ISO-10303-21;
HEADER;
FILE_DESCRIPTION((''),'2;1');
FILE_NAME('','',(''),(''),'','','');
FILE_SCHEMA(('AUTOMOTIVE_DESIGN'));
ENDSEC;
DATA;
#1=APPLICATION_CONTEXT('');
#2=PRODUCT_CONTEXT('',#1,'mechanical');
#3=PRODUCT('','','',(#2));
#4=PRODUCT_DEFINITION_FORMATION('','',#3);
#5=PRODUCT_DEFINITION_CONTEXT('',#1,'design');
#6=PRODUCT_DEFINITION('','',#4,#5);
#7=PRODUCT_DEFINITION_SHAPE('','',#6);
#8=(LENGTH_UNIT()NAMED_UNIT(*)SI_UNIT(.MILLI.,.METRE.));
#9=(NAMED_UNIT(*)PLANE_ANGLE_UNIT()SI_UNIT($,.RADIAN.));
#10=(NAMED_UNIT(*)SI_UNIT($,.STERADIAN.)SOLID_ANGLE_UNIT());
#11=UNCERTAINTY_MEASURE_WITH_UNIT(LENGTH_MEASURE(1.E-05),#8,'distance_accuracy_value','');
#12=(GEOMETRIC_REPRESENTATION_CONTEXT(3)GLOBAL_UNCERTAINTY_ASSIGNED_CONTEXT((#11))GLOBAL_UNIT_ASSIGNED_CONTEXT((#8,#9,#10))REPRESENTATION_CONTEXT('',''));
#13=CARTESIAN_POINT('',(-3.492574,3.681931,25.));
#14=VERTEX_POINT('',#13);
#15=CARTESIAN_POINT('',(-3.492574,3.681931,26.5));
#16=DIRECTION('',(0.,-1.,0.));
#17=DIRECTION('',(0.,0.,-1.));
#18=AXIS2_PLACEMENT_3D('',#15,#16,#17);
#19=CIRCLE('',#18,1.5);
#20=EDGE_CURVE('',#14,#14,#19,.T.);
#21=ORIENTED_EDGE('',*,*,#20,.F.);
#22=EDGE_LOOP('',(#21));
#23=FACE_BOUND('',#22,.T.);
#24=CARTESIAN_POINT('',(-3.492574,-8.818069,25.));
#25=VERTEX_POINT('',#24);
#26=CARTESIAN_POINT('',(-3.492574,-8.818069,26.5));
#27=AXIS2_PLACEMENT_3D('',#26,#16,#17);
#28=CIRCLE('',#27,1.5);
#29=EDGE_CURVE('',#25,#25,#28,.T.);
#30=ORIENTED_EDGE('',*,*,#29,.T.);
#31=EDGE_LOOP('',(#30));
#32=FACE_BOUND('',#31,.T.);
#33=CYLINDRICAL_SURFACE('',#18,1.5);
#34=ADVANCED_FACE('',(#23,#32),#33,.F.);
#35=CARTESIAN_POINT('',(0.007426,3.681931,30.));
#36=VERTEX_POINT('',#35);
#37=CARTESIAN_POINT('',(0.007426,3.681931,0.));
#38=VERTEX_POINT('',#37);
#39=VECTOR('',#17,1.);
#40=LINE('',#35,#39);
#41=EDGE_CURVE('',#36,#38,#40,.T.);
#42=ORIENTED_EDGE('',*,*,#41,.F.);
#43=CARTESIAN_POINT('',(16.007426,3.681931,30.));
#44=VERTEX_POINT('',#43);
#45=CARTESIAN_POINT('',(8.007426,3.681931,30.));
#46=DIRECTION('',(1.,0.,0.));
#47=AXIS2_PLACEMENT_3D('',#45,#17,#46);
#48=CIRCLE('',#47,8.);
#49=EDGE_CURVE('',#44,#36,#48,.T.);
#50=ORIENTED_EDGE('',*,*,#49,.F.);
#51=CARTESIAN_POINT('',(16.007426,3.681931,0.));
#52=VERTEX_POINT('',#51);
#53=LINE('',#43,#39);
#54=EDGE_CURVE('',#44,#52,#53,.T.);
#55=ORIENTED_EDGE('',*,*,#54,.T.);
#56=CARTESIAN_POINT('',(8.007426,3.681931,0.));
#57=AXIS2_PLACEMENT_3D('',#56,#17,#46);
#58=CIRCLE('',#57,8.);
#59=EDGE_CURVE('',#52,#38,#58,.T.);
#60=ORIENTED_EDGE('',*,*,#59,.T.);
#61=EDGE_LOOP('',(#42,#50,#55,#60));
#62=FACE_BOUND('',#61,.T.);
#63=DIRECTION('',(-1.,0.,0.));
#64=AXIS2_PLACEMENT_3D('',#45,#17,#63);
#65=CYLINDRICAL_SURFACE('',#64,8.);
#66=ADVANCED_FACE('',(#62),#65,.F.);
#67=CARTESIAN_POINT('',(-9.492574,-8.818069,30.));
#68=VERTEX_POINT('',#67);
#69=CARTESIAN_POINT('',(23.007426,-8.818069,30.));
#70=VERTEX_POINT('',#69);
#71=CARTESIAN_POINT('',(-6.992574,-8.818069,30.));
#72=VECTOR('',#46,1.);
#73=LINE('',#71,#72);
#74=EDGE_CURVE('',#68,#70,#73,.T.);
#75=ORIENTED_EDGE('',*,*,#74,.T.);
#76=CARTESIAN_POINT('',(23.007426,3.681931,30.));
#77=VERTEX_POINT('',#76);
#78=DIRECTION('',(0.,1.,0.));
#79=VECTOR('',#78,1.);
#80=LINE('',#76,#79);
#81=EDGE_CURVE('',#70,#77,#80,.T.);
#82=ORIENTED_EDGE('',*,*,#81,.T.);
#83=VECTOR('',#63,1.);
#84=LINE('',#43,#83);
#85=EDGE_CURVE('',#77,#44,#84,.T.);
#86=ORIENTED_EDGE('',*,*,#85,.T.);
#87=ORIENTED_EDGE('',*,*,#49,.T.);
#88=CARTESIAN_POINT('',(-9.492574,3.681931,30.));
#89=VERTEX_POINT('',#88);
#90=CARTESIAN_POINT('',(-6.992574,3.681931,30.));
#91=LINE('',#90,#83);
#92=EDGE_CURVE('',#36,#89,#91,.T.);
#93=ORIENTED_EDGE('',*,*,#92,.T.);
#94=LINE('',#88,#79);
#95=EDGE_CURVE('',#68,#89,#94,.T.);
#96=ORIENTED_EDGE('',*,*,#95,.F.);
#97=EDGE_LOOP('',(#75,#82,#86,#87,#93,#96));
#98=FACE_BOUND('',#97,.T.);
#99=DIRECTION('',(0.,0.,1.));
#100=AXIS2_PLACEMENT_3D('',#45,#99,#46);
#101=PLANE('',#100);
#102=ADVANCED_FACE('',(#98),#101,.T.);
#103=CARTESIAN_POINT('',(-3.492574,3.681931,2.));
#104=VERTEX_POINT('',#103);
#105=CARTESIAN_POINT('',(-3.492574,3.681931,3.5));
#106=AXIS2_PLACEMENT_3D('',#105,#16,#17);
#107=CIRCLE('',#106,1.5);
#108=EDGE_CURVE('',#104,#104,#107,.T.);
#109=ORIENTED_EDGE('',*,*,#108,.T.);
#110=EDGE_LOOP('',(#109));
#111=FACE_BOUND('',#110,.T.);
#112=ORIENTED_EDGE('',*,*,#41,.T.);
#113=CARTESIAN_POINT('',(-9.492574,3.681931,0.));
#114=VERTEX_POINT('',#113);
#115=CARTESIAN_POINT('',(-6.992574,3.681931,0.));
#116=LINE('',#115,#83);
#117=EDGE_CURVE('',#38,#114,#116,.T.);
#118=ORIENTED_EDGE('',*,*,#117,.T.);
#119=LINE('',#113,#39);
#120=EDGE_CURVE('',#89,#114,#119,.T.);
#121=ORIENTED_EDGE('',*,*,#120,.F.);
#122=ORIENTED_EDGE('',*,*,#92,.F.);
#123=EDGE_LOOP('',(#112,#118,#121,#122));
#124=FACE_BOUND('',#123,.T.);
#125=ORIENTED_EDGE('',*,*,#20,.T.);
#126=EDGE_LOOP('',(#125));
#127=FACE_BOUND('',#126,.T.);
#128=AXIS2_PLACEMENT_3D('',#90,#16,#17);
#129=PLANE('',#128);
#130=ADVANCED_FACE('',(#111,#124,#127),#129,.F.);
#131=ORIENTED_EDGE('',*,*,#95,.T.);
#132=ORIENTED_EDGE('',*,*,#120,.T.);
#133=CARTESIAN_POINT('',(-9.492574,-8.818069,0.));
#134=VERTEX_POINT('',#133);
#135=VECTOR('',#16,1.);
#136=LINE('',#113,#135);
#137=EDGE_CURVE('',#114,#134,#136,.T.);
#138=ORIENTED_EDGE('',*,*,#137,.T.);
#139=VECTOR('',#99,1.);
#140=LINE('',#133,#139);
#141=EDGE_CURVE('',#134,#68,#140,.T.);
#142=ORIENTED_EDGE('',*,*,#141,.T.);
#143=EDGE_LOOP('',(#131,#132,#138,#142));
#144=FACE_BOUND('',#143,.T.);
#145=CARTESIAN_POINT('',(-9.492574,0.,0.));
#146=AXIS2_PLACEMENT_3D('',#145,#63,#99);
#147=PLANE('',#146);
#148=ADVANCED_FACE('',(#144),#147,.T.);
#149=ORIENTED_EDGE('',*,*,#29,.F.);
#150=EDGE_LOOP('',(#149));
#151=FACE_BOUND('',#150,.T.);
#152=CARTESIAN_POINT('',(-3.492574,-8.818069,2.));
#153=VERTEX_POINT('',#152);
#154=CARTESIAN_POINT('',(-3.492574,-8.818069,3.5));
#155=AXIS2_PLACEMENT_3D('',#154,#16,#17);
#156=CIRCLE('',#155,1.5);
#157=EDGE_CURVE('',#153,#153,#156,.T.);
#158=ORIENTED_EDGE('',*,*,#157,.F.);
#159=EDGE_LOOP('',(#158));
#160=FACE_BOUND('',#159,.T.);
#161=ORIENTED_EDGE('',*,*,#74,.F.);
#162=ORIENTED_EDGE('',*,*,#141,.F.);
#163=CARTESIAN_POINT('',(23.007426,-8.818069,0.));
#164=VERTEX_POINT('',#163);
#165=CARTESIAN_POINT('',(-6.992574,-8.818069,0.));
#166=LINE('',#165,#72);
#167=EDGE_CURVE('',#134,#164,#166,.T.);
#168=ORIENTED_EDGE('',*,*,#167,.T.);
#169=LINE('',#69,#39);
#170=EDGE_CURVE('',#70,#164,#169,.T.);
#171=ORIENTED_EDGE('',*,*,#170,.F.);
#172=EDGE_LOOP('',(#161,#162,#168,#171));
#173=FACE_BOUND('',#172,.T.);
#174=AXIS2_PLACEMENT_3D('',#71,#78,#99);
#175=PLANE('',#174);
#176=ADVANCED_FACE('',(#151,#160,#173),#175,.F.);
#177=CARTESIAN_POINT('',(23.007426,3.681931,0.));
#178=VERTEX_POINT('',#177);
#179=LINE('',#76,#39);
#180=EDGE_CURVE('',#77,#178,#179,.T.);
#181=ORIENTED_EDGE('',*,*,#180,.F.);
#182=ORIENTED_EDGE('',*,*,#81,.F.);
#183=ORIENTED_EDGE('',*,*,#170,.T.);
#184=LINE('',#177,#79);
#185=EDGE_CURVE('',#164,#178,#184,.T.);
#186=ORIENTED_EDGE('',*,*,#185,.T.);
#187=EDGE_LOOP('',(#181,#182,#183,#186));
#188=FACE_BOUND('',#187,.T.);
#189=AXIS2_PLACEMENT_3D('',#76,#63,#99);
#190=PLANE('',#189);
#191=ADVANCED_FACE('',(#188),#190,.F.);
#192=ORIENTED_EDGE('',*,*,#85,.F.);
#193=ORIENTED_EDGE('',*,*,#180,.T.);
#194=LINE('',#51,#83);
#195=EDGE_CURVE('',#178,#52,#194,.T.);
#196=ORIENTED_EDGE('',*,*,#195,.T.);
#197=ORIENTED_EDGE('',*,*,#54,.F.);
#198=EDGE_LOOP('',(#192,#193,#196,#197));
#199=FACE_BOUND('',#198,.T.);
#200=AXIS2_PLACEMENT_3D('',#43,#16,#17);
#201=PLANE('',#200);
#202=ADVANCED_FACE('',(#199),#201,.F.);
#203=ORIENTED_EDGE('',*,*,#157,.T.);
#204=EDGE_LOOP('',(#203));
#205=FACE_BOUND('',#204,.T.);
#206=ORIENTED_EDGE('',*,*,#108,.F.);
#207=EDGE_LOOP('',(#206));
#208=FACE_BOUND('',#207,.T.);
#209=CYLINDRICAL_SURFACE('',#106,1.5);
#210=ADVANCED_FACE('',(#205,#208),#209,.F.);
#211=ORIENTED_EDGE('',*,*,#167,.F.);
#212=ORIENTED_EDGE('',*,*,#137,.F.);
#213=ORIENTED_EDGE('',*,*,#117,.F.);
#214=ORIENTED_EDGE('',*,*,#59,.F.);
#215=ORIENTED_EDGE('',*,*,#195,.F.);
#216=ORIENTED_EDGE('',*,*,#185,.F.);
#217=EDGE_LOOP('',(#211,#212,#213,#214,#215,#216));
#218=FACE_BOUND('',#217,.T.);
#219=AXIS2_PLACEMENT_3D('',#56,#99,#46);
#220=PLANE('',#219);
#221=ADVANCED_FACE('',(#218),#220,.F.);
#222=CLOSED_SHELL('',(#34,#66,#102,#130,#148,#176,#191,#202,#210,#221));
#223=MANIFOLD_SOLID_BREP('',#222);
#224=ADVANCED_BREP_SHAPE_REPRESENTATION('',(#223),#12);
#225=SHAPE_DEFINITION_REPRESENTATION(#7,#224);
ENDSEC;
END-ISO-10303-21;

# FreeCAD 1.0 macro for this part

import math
import FreeCAD as App
import Part
import Sketcher

V = App.Vector
Q = App.Units.Quantity


def add_polygon(sketch, points):
    """Adds a closed chain of lines whose ends are joined by coincident constraints."""
    first, n = sketch.GeometryCount, len(points)
    for a, b in zip(points, points[1:] + points[:1]):
        sketch.addGeometry(Part.LineSegment(App.Vector(*a, 0), App.Vector(*b, 0)), False)
    for i in range(n):
        sketch.addConstraint(Sketcher.Constraint("Coincident", first + i, 2, first + (i + 1) % n, 1))

doc = App.newDocument("Part")
body = doc.addObject("PartDesign::Body", "Body")

# Sketch on XY plane
sketch1 = doc.addObject("Sketcher::SketchObject", "Sketch")
body.addObject(sketch1)
sketch1.AttachmentSupport = (doc.XY_Plane, [""])
sketch1.MapMode = "FlatFace"
sketch1.addGeometry([
    Part.LineSegment(V(23, 4, 0), V(16, 4, 0)),  # 0
    Part.ArcOfCircle(Part.Circle(V(8, 4, 0), V(0, 0, 1), 8), math.radians(180), math.radians(360)),  # 1
    Part.LineSegment(V(0, 4, 0), V(-7, 4, 0)),  # 2
    Part.LineSegment(V(-7, 4, 0), V(-7, -9, 0)),  # 3
    Part.LineSegment(V(-7, -9, 0), V(23, -9, 0)),  # 4
    Part.LineSegment(V(23, -9, 0), V(23, 4, 0)),  # 5
], False)
sketch1.addConstraint([
    Sketcher.Constraint("Coincident", 0, 2, 1, 2),
    Sketcher.Constraint("Coincident", 1, 1, 2, 1),
    Sketcher.Constraint("Coincident", 2, 2, 3, 1),
    Sketcher.Constraint("Coincident", 3, 2, 4, 1),
    Sketcher.Constraint("Coincident", 4, 2, 5, 1),
    Sketcher.Constraint("Coincident", 5, 2, 0, 1),
    Sketcher.Constraint("Horizontal", 0),
    Sketcher.Constraint("Horizontal", 2),
    Sketcher.Constraint("Vertical", 3),
    Sketcher.Constraint("Horizontal", 4),
    Sketcher.Constraint("Vertical", 5),
    Sketcher.Constraint("Horizontal", 1, 3, 0, 2),
    Sketcher.Constraint("Horizontal", 0, 2, 1, 1),
    Sketcher.Constraint("Equal", 0, 2),
    Sketcher.Constraint("Radius", 1, Q("8 mm")),
    Sketcher.Constraint("DistanceX", 0, 2, 0, 1, Q("7 mm")),
    Sketcher.Constraint("DistanceY", 3, 2, 3, 1, Q("12.5 mm")),
    Sketcher.Constraint("DistanceY", -1, 1, 1, 3, Q("3.681931 mm")),
    Sketcher.Constraint("DistanceX", -1, 1, 1, 3, Q("8.007426 mm")),
])
pad1 = doc.addObject("PartDesign::Pad", "Pad")
body.addObject(pad1)
pad1.Profile = sketch1
pad1.Length = 30

# Sketch on XZ plane
sketch2 = doc.addObject("Sketcher::SketchObject", "Sketch001")
body.addObject(sketch2)
sketch2.AttachmentSupport = (doc.XZ_Plane, [""])
sketch2.MapMode = "FlatFace"
sketch2.AttachmentOffset = App.Placement(V(0, 0, 8.818069), App.Rotation())
sketch2.addGeometry([
    Part.Circle(V(-3.5, 3.5, 0), V(0, 0, 1), 1.5),
    Part.Circle(V(-3.5, 26.5, 0), V(0, 0, 1), 1.5),
], False)
sketch2.addConstraint([
    Sketcher.Constraint("Equal", 0, 1),
    Sketcher.Constraint("Vertical", 0, 3, 1, 3),
    Sketcher.Constraint("Diameter", 0, Q("3 mm")),
    Sketcher.Constraint("DistanceY", 0, 3, 1, 3, Q("23 mm")),
    Sketcher.Constraint("DistanceY", -1, 1, 0, 3, Q("3.5 mm")),
    Sketcher.Constraint("DistanceX", 0, 3, -1, 1, Q("3.492574 mm")),
])
pocket1 = doc.addObject("PartDesign::Pocket", "Pocket")
body.addObject(pocket1)
pocket1.Profile = sketch2
pocket1.Type = "ThroughAll"

# Sketch on YZ plane
sketch3 = doc.addObject("Sketcher::SketchObject", "Sketch002")
body.addObject(sketch3)
sketch3.AttachmentSupport = (doc.YZ_Plane, [""])
sketch3.MapMode = "FlatFace"
sketch3.AttachmentOffset = App.Placement(V(0, 0, -6.992574), App.Rotation())
add_polygon(sketch3, [(4, 0), (-9, 0), (-9, 30), (4, 30)])  # lines 0-3
sketch3.addConstraint([
    Sketcher.Constraint("Horizontal", 0),
    Sketcher.Constraint("Vertical", 1),
    Sketcher.Constraint("Horizontal", 2),
    Sketcher.Constraint("Vertical", 3),
    Sketcher.Constraint("PointOnObject", 0, 2, -1),
    Sketcher.Constraint("DistanceY", 1, 1, 1, 2, Q("30 mm")),
    Sketcher.Constraint("DistanceX", 0, 2, 0, 1, Q("12.5 mm")),
    Sketcher.Constraint("DistanceX", 0, 2, -1, 1, Q("8.818069 mm")),
])
pad2 = doc.addObject("PartDesign::Pad", "Pad001")
body.addObject(pad2)
pad2.Profile = sketch3
pad2.Length = 2.5
pad2.Reversed = True

doc.recompute()
